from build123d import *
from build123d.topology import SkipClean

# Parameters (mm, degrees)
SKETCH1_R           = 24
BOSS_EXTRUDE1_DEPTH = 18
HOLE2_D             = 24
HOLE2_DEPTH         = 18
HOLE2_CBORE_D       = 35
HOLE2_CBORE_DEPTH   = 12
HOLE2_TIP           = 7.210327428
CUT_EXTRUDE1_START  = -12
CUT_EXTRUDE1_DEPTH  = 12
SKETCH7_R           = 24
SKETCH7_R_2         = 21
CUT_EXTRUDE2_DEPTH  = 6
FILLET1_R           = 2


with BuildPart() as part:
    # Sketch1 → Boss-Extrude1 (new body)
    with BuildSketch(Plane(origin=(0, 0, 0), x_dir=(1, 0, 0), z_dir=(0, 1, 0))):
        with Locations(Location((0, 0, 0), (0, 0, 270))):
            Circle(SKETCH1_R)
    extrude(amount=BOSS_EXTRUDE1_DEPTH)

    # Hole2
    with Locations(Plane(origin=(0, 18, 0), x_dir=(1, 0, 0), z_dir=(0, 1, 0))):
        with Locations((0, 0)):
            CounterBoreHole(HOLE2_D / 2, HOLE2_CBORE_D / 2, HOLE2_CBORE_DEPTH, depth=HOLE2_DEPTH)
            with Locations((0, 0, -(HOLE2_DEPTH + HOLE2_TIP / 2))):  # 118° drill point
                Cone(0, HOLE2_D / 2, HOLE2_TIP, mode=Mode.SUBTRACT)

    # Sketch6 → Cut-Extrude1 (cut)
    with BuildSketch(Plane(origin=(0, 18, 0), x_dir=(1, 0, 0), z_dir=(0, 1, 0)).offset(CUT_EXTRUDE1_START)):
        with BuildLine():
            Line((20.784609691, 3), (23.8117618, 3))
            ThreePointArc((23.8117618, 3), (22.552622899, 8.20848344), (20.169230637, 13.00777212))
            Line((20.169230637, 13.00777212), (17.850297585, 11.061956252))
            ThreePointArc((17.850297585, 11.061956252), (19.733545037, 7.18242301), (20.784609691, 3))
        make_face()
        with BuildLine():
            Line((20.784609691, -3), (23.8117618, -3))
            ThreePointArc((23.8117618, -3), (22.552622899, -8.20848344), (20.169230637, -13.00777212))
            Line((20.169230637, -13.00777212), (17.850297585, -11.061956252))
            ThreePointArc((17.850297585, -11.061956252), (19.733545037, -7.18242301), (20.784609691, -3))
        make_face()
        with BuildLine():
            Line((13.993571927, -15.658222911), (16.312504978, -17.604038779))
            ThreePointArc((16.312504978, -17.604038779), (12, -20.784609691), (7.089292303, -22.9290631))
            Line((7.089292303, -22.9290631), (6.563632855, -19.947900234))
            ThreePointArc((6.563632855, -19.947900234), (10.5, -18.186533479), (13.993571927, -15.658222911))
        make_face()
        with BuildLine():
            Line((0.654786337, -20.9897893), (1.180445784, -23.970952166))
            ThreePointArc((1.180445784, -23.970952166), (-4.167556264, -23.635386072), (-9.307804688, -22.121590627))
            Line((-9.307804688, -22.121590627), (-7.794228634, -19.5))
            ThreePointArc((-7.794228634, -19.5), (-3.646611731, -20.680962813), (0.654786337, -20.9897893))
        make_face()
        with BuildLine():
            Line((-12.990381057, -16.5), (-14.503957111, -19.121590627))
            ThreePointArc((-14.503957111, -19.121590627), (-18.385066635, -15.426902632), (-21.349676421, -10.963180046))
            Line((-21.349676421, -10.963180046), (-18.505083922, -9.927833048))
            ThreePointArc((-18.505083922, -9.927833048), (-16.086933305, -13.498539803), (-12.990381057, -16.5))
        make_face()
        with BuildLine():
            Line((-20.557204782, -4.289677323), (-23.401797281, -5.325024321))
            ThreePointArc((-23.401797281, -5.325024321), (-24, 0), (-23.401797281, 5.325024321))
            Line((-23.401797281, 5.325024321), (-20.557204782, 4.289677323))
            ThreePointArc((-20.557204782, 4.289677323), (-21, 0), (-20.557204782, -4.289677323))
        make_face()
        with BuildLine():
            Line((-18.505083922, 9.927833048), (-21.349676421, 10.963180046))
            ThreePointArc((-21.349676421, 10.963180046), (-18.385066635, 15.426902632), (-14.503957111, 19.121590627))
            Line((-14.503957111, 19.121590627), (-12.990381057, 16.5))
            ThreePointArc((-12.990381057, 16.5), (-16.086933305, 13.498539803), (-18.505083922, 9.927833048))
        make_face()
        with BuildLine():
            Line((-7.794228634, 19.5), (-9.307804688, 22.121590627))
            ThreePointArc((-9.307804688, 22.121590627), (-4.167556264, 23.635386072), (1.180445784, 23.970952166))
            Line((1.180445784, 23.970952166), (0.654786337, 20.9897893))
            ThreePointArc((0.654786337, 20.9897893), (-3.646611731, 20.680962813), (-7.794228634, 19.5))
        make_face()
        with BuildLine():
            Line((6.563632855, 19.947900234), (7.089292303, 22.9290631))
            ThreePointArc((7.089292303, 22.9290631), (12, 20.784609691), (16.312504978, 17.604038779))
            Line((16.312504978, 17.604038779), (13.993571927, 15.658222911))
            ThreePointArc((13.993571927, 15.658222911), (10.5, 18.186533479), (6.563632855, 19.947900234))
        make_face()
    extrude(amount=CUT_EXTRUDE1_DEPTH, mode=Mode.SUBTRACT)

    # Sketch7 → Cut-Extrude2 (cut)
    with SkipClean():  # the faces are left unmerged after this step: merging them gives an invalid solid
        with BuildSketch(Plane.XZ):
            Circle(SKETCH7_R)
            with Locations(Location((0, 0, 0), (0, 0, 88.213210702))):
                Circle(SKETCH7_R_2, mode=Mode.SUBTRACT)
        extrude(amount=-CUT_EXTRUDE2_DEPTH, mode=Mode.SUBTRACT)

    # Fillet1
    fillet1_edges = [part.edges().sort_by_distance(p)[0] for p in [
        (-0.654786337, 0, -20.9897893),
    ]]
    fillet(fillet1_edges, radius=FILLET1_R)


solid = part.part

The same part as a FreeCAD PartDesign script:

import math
import FreeCAD as App
import Part
import Sketcher
from FreeCAD import Vector
Q = App.Units.Quantity


def edges_at(feature, points):
    """Names of the edges that pass closest to the given points."""
    edges = feature.Shape.Edges
    near = lambda p: min(range(len(edges)), key=lambda i: edges[i].distToShape(Part.Vertex(*p))[0])
    return sorted({f"Edge{near(p) + 1}" for p in points})

doc = App.newDocument("Part")
params = doc.addObject("Spreadsheet::Sheet", "Params")
for row, (alias, value) in enumerate([
    ("sketch1_diameter", "48 mm"),
    ("pad1_length", "18 mm"),
    ("sketch2_diameter", "24 mm"),
    ("hole_diameter", "24 mm"),
    ("hole_depth", "18 mm"),
    ("hole_cbore_diameter", "35 mm"),
    ("hole_cbore_depth", "12 mm"),
    ("sketch3_radius", "24 mm"),
    ("sketch3_radius2", "21 mm"),
    ("pocket1_length", "12 mm"),
    ("sketch4_diameter", "48 mm"),
    ("sketch4_diameter2", "42 mm"),
    ("pocket2_length", "6 mm"),
    ("fillet_radius", "2 mm"),
], start=1):
    params.set(f"A{row}", alias)
    params.set(f"B{row}", "=" + value)
    params.setAlias(f"B{row}", alias)

body = doc.addObject("PartDesign::Body", "Body")

sketch1 = doc.addObject("Sketcher::SketchObject", "Sketch")
body.addObject(sketch1)
sketch1.AttachmentSupport = (doc.XZ_Plane, [""])
sketch1.MapMode = "FlatFace"
sketch1.addGeometry(Part.Circle(Vector(0, 0, 0), Vector(0, 0, 1), 24), False)
sketch1.addConstraint(Sketcher.Constraint("Coincident", 0, 3, -1, 1))
sketch1.addConstraint(Sketcher.Constraint("Diameter", 0, Q("48 mm")))
sketch1.setExpression("Constraints[1]", "Params.sketch1_diameter")
pad1 = doc.addObject("PartDesign::Pad", "Pad")
body.addObject(pad1)
pad1.Profile = sketch1
pad1.setExpression("Length", "Params.pad1_length")
pad1.Reversed = True

sketch2 = doc.addObject("Sketcher::SketchObject", "Sketch001")
body.addObject(sketch2)
sketch2.AttachmentSupport = (doc.XZ_Plane, [""])
sketch2.MapMode = "FlatFace"
sketch2.AttachmentOffset = App.Placement(Vector(0, 0, -18), App.Rotation())
sketch2.addGeometry(Part.Circle(Vector(0, 0, 0), Vector(0, 0, 1), 12), False)
sketch2.addConstraint(Sketcher.Constraint("Coincident", 0, 3, -1, 1))
sketch2.addConstraint(Sketcher.Constraint("Diameter", 0, Q("24 mm")))
sketch2.setExpression("Constraints[1]", "Params.sketch2_diameter")
doc.recompute()
hole = doc.addObject("PartDesign::Hole", "Hole")
body.addObject(hole)
hole.Profile = sketch2
hole.ThreadType = "None"
hole.setExpression("Diameter", "Params.hole_diameter")
hole.DepthType = "Dimension"
hole.setExpression("Depth", "Params.hole_depth")
hole.DrillPoint = "Angled"
hole.DrillPointAngle = 118
hole.HoleCutType = "Counterbore"
hole.setExpression("HoleCutDiameter", "Params.hole_cbore_diameter")
hole.setExpression("HoleCutDepth", "Params.hole_cbore_depth")
hole.Reversed = True

sketch3 = doc.addObject("Sketcher::SketchObject", "Sketch002")
body.addObject(sketch3)
sketch3.AttachmentSupport = (doc.XZ_Plane, [""])
sketch3.MapMode = "FlatFace"
sketch3.AttachmentOffset = App.Placement(Vector(0, 0, -6), App.Rotation())
sketch3.addGeometry(Part.LineSegment(Vector(20.8, -3, 0), Vector(23.8, -3, 0)), False)
sketch3.addGeometry(Part.ArcOfCircle(Part.Circle(Vector(0, 0, 0), Vector(0, 0, 1), 24), math.radians(-33), math.radians(-7)), False)
sketch3.addGeometry(Part.LineSegment(Vector(20.2, -13, 0), Vector(17.9, -11.1, 0)), False)
sketch3.addGeometry(Part.ArcOfCircle(Part.Circle(Vector(0, 0, 0), Vector(0, 0, 1), 21), math.radians(-32), math.radians(-8)), False)
sketch3.addGeometry(Part.LineSegment(Vector(23.8, 3, 0), Vector(20.8, 3, 0)), False)
sketch3.addGeometry(Part.ArcOfCircle(Part.Circle(Vector(0, 0, 0), Vector(0, 0, 1), 21), math.radians(8), math.radians(32)), False)
sketch3.addGeometry(Part.LineSegment(Vector(17.9, 11.1, 0), Vector(20.2, 13, 0)), False)
sketch3.addGeometry(Part.ArcOfCircle(Part.Circle(Vector(0, 0, 0), Vector(0, 0, 1), 24), math.radians(7), math.radians(33)), False)
sketch3.addGeometry(Part.LineSegment(Vector(16.3, 17.6, 0), Vector(14, 15.7, 0)), False)
sketch3.addGeometry(Part.ArcOfCircle(Part.Circle(Vector(0, 0, 0), Vector(0, 0, 1), 21), math.radians(48), math.radians(72)), False)
sketch3.addGeometry(Part.LineSegment(Vector(6.6, 19.9, 0), Vector(7.1, 22.9, 0)), False)
sketch3.addGeometry(Part.ArcOfCircle(Part.Circle(Vector(0, 0, 0), Vector(0, 0, 1), 24), math.radians(47), math.radians(73)), False)
sketch3.addGeometry(Part.LineSegment(Vector(1.2, 24, 0), Vector(0.7, 21, 0)), False)
sketch3.addGeometry(Part.ArcOfCircle(Part.Circle(Vector(0, 0, 0), Vector(0, 0, 1), 21), math.radians(88), math.radians(112)), False)
sketch3.addGeometry(Part.LineSegment(Vector(-7.8, 19.5, 0), Vector(-9.3, 22.1, 0)), False)
sketch3.addGeometry(Part.ArcOfCircle(Part.Circle(Vector(0, 0, 0), Vector(0, 0, 1), 24), math.radians(87), math.radians(113)), False)
sketch3.addGeometry(Part.LineSegment(Vector(-14.5, 19.1, 0), Vector(-13, 16.5, 0)), False)
sketch3.addGeometry(Part.ArcOfCircle(Part.Circle(Vector(0, 0, 0), Vector(0, 0, 1), 21), math.radians(128), math.radians(152)), False)
sketch3.addGeometry(Part.LineSegment(Vector(-18.5, 9.9, 0), Vector(-21.3, 11, 0)), False)
sketch3.addGeometry(Part.ArcOfCircle(Part.Circle(Vector(0, 0, 0), Vector(0, 0, 1), 24), math.radians(127), math.radians(153)), False)
sketch3.addGeometry(Part.LineSegment(Vector(-23.4, 5.3, 0), Vector(-20.6, 4.3, 0)), False)
sketch3.addGeometry(Part.ArcOfCircle(Part.Circle(Vector(0, 0, 0), Vector(0, 0, 1), 21), math.radians(168), math.radians(192)), False)
sketch3.addGeometry(Part.LineSegment(Vector(-20.6, -4.3, 0), Vector(-23.4, -5.3, 0)), False)
sketch3.addGeometry(Part.ArcOfCircle(Part.Circle(Vector(0, 0, 0), Vector(0, 0, 1), 24), math.radians(167), math.radians(193)), False)
sketch3.addGeometry(Part.LineSegment(Vector(-21.3, -11, 0), Vector(-18.5, -9.9, 0)), False)
sketch3.addGeometry(Part.ArcOfCircle(Part.Circle(Vector(0, 0, 0), Vector(0, 0, 1), 21), math.radians(-152), math.radians(-128)), False)
sketch3.addGeometry(Part.LineSegment(Vector(-13, -16.5, 0), Vector(-14.5, -19.1, 0)), False)
sketch3.addGeometry(Part.ArcOfCircle(Part.Circle(Vector(0, 0, 0), Vector(0, 0, 1), 24), math.radians(-153), math.radians(-127)), False)
sketch3.addGeometry(Part.LineSegment(Vector(-9.3, -22.1, 0), Vector(-7.8, -19.5, 0)), False)
sketch3.addGeometry(Part.ArcOfCircle(Part.Circle(Vector(0, 0, 0), Vector(0, 0, 1), 21), math.radians(-112), math.radians(-88)), False)
sketch3.addGeometry(Part.LineSegment(Vector(0.7, -21, 0), Vector(1.2, -24, 0)), False)
sketch3.addGeometry(Part.ArcOfCircle(Part.Circle(Vector(0, 0, 0), Vector(0, 0, 1), 24), math.radians(-113), math.radians(-87)), False)
sketch3.addGeometry(Part.LineSegment(Vector(7.1, -22.9, 0), Vector(6.6, -19.9, 0)), False)
sketch3.addGeometry(Part.ArcOfCircle(Part.Circle(Vector(0, 0, 0), Vector(0, 0, 1), 21), math.radians(-72), math.radians(-48)), False)
sketch3.addGeometry(Part.LineSegment(Vector(14, -15.7, 0), Vector(16.3, -17.6, 0)), False)
sketch3.addGeometry(Part.ArcOfCircle(Part.Circle(Vector(0, 0, 0), Vector(0, 0, 1), 24), math.radians(-73), math.radians(-47)), False)
sketch3.addConstraint(Sketcher.Constraint("Coincident", 0, 2, 1, 2))
sketch3.addConstraint(Sketcher.Constraint("Coincident", 1, 1, 2, 1))
sketch3.addConstraint(Sketcher.Constraint("Coincident", 2, 2, 3, 1))
sketch3.addConstraint(Sketcher.Constraint("Coincident", 3, 2, 0, 1))
sketch3.addConstraint(Sketcher.Constraint("Coincident", 4, 2, 5, 1))
sketch3.addConstraint(Sketcher.Constraint("Coincident", 5, 2, 6, 1))
sketch3.addConstraint(Sketcher.Constraint("Coincident", 6, 2, 7, 2))
sketch3.addConstraint(Sketcher.Constraint("Coincident", 7, 1, 4, 1))
sketch3.addConstraint(Sketcher.Constraint("Coincident", 8, 2, 9, 1))
sketch3.addConstraint(Sketcher.Constraint("Coincident", 9, 2, 10, 1))
sketch3.addConstraint(Sketcher.Constraint("Coincident", 10, 2, 11, 2))
sketch3.addConstraint(Sketcher.Constraint("Coincident", 11, 1, 8, 1))
sketch3.addConstraint(Sketcher.Constraint("Coincident", 12, 2, 13, 1))
sketch3.addConstraint(Sketcher.Constraint("Coincident", 13, 2, 14, 1))
sketch3.addConstraint(Sketcher.Constraint("Coincident", 14, 2, 15, 2))
sketch3.addConstraint(Sketcher.Constraint("Coincident", 15, 1, 12, 1))
sketch3.addConstraint(Sketcher.Constraint("Coincident", 16, 2, 17, 1))
sketch3.addConstraint(Sketcher.Constraint("Coincident", 17, 2, 18, 1))
sketch3.addConstraint(Sketcher.Constraint("Coincident", 18, 2, 19, 2))
sketch3.addConstraint(Sketcher.Constraint("Coincident", 19, 1, 16, 1))
sketch3.addConstraint(Sketcher.Constraint("Coincident", 20, 2, 21, 1))
sketch3.addConstraint(Sketcher.Constraint("Coincident", 21, 2, 22, 1))
sketch3.addConstraint(Sketcher.Constraint("Coincident", 22, 2, 23, 2))
sketch3.addConstraint(Sketcher.Constraint("Coincident", 23, 1, 20, 1))
sketch3.addConstraint(Sketcher.Constraint("Coincident", 24, 2, 25, 1))
sketch3.addConstraint(Sketcher.Constraint("Coincident", 25, 2, 26, 1))
sketch3.addConstraint(Sketcher.Constraint("Coincident", 26, 2, 27, 2))
sketch3.addConstraint(Sketcher.Constraint("Coincident", 27, 1, 24, 1))
sketch3.addConstraint(Sketcher.Constraint("Coincident", 28, 2, 29, 1))
sketch3.addConstraint(Sketcher.Constraint("Coincident", 29, 2, 30, 1))
sketch3.addConstraint(Sketcher.Constraint("Coincident", 30, 2, 31, 2))
sketch3.addConstraint(Sketcher.Constraint("Coincident", 31, 1, 28, 1))
sketch3.addConstraint(Sketcher.Constraint("Coincident", 32, 2, 33, 1))
sketch3.addConstraint(Sketcher.Constraint("Coincident", 33, 2, 34, 1))
sketch3.addConstraint(Sketcher.Constraint("Coincident", 34, 2, 35, 2))
sketch3.addConstraint(Sketcher.Constraint("Coincident", 35, 1, 32, 1))
sketch3.addConstraint(Sketcher.Constraint("Horizontal", 0))
sketch3.addConstraint(Sketcher.Constraint("Horizontal", 4))
sketch3.addConstraint(Sketcher.Constraint("Coincident", 1, 3, -1, 1))
sketch3.addConstraint(Sketcher.Constraint("Coincident", 3, 3, -1, 1))
sketch3.addConstraint(Sketcher.Constraint("Coincident", 5, 3, -1, 1))
sketch3.addConstraint(Sketcher.Constraint("Coincident", 7, 3, -1, 1))
sketch3.addConstraint(Sketcher.Constraint("Coincident", 9, 3, -1, 1))
sketch3.addConstraint(Sketcher.Constraint("Coincident", 11, 3, -1, 1))
sketch3.addConstraint(Sketcher.Constraint("Coincident", 13, 3, -1, 1))
sketch3.addConstraint(Sketcher.Constraint("Coincident", 15, 3, -1, 1))
sketch3.addConstraint(Sketcher.Constraint("Coincident", 17, 3, -1, 1))
sketch3.addConstraint(Sketcher.Constraint("Coincident", 19, 3, -1, 1))
sketch3.addConstraint(Sketcher.Constraint("Coincident", 21, 3, -1, 1))
sketch3.addConstraint(Sketcher.Constraint("Coincident", 23, 3, -1, 1))
sketch3.addConstraint(Sketcher.Constraint("Coincident", 25, 3, -1, 1))
sketch3.addConstraint(Sketcher.Constraint("Coincident", 27, 3, -1, 1))
sketch3.addConstraint(Sketcher.Constraint("Coincident", 29, 3, -1, 1))
sketch3.addConstraint(Sketcher.Constraint("Coincident", 31, 3, -1, 1))
sketch3.addConstraint(Sketcher.Constraint("Coincident", 33, 3, -1, 1))
sketch3.addConstraint(Sketcher.Constraint("Coincident", 35, 3, -1, 1))
sketch3.addConstraint(Sketcher.Constraint("Equal", 3, 5))
sketch3.addConstraint(Sketcher.Constraint("Equal", 1, 7))
sketch3.addConstraint(Sketcher.Constraint("Equal", 5, 9))
sketch3.addConstraint(Sketcher.Constraint("Equal", 7, 11))
sketch3.addConstraint(Sketcher.Constraint("Equal", 9, 13))
sketch3.addConstraint(Sketcher.Constraint("Equal", 11, 15))
sketch3.addConstraint(Sketcher.Constraint("Equal", 13, 17))
sketch3.addConstraint(Sketcher.Constraint("Equal", 15, 19))
sketch3.addConstraint(Sketcher.Constraint("Equal", 17, 21))
sketch3.addConstraint(Sketcher.Constraint("Equal", 19, 23))
sketch3.addConstraint(Sketcher.Constraint("Equal", 21, 25))
sketch3.addConstraint(Sketcher.Constraint("Equal", 23, 27))
sketch3.addConstraint(Sketcher.Constraint("Equal", 25, 29))
sketch3.addConstraint(Sketcher.Constraint("Equal", 27, 31))
sketch3.addConstraint(Sketcher.Constraint("Equal", 29, 33))
sketch3.addConstraint(Sketcher.Constraint("Equal", 31, 35))
sketch3.addConstraint(Sketcher.Constraint("Parallel", 6, 8))
sketch3.addConstraint(Sketcher.Constraint("Parallel", 10, 12))
sketch3.addConstraint(Sketcher.Constraint("Parallel", 14, 16))
sketch3.addConstraint(Sketcher.Constraint("Parallel", 18, 20))
sketch3.addConstraint(Sketcher.Constraint("Parallel", 22, 24))
sketch3.addConstraint(Sketcher.Constraint("Parallel", 26, 28))
sketch3.addConstraint(Sketcher.Constraint("Parallel", 30, 32))
sketch3.addConstraint(Sketcher.Constraint("Parallel", 2, 34))
sketch3.addConstraint(Sketcher.Constraint("Vertical", 3, 2, 4, 2))
sketch3.addConstraint(Sketcher.Constraint("Vertical", 2, 2, 5, 2))
sketch3.addConstraint(Sketcher.Constraint("Vertical", 1, 1, 6, 2))
sketch3.addConstraint(Sketcher.Constraint("Vertical", 20, 2, 21, 2))
sketch3.addConstraint(Sketcher.Constraint("Vertical", 22, 2, 23, 1))
sketch3.addConstraint(Sketcher.Constraint("Vertical", 17, 2, 24, 2))
sketch3.addConstraint(Sketcher.Constraint("Vertical", 16, 2, 25, 2))
sketch3.addConstraint(Sketcher.Constraint("Vertical", 19, 1, 26, 2))
sketch3.addConstraint(Sketcher.Constraint("Vertical", 13, 2, 28, 2))
sketch3.addConstraint(Sketcher.Constraint("Vertical", 12, 2, 29, 2))
sketch3.addConstraint(Sketcher.Constraint("Vertical", 15, 1, 30, 2))
sketch3.addConstraint(Sketcher.Constraint("Vertical", 9, 2, 32, 2))
sketch3.addConstraint(Sketcher.Constraint("Vertical", 8, 2, 33, 2))
sketch3.addConstraint(Sketcher.Constraint("Equal", 6, 8))
sketch3.addConstraint(Sketcher.Constraint("Equal", 8, 10))
sketch3.addConstraint(Sketcher.Constraint("Equal", 10, 12))
sketch3.addConstraint(Sketcher.Constraint("Equal", 12, 14))
sketch3.addConstraint(Sketcher.Constraint("Equal", 14, 16))
sketch3.addConstraint(Sketcher.Constraint("Equal", 16, 18))
sketch3.addConstraint(Sketcher.Constraint("Equal", 18, 20))
sketch3.addConstraint(Sketcher.Constraint("Radius", 1, Q("24 mm")))
sketch3.addConstraint(Sketcher.Constraint("Radius", 3, Q("21 mm")))
sketch3.addConstraint(Sketcher.Constraint("Angle", 2, Q("140 deg")))
sketch3.addConstraint(Sketcher.Constraint("Angle", 10, Q("80 deg")))
sketch3.addConstraint(Sketcher.Constraint("Angle", 14, Q("120 deg")))
sketch3.addConstraint(Sketcher.Constraint("Angle", 18, Q("160 deg")))
sketch3.addConstraint(Sketcher.Constraint("DistanceY", 0, 2, -1, 1, Q("3 mm")))
sketch3.addConstraint(Sketcher.Constraint("DistanceY", 16, 2, 13, 2, Q("3 mm")))
sketch3.setExpression("Constraints[100]", "Params.sketch3_radius")
sketch3.setExpression("Constraints[101]", "Params.sketch3_radius2")
pocket1 = doc.addObject("PartDesign::Pocket", "Pocket")
body.addObject(pocket1)
pocket1.Profile = sketch3
pocket1.setExpression("Length", "Params.pocket1_length")

sketch4 = doc.addObject("Sketcher::SketchObject", "Sketch003")
body.addObject(sketch4)
sketch4.AttachmentSupport = (doc.XZ_Plane, [""])
sketch4.MapMode = "FlatFace"
sketch4.addGeometry(Part.Circle(Vector(0, 0, 0), Vector(0, 0, 1), 24), False)
sketch4.addGeometry(Part.Circle(Vector(0, 0, 0), Vector(0, 0, 1), 21), False)
sketch4.addConstraint(Sketcher.Constraint("Coincident", 0, 3, -1, 1))
sketch4.addConstraint(Sketcher.Constraint("Coincident", 1, 3, -1, 1))
sketch4.addConstraint(Sketcher.Constraint("Diameter", 0, Q("48 mm")))
sketch4.addConstraint(Sketcher.Constraint("Diameter", 1, Q("42 mm")))
sketch4.setExpression("Constraints[2]", "Params.sketch4_diameter")
sketch4.setExpression("Constraints[3]", "Params.sketch4_diameter2")
pocket2 = doc.addObject("PartDesign::Pocket", "Pocket001")
body.addObject(pocket2)
pocket2.Profile = sketch4
pocket2.setExpression("Length", "Params.pocket2_length")
doc.recompute()

fillet = doc.addObject("PartDesign::Fillet", "Fillet")
body.addObject(fillet)
fillet.Base = (pocket2, edges_at(pocket2, [(-0.655, 0, -20.99)]))
fillet.setExpression("Radius", "Params.fillet_radius")

doc.recompute()
